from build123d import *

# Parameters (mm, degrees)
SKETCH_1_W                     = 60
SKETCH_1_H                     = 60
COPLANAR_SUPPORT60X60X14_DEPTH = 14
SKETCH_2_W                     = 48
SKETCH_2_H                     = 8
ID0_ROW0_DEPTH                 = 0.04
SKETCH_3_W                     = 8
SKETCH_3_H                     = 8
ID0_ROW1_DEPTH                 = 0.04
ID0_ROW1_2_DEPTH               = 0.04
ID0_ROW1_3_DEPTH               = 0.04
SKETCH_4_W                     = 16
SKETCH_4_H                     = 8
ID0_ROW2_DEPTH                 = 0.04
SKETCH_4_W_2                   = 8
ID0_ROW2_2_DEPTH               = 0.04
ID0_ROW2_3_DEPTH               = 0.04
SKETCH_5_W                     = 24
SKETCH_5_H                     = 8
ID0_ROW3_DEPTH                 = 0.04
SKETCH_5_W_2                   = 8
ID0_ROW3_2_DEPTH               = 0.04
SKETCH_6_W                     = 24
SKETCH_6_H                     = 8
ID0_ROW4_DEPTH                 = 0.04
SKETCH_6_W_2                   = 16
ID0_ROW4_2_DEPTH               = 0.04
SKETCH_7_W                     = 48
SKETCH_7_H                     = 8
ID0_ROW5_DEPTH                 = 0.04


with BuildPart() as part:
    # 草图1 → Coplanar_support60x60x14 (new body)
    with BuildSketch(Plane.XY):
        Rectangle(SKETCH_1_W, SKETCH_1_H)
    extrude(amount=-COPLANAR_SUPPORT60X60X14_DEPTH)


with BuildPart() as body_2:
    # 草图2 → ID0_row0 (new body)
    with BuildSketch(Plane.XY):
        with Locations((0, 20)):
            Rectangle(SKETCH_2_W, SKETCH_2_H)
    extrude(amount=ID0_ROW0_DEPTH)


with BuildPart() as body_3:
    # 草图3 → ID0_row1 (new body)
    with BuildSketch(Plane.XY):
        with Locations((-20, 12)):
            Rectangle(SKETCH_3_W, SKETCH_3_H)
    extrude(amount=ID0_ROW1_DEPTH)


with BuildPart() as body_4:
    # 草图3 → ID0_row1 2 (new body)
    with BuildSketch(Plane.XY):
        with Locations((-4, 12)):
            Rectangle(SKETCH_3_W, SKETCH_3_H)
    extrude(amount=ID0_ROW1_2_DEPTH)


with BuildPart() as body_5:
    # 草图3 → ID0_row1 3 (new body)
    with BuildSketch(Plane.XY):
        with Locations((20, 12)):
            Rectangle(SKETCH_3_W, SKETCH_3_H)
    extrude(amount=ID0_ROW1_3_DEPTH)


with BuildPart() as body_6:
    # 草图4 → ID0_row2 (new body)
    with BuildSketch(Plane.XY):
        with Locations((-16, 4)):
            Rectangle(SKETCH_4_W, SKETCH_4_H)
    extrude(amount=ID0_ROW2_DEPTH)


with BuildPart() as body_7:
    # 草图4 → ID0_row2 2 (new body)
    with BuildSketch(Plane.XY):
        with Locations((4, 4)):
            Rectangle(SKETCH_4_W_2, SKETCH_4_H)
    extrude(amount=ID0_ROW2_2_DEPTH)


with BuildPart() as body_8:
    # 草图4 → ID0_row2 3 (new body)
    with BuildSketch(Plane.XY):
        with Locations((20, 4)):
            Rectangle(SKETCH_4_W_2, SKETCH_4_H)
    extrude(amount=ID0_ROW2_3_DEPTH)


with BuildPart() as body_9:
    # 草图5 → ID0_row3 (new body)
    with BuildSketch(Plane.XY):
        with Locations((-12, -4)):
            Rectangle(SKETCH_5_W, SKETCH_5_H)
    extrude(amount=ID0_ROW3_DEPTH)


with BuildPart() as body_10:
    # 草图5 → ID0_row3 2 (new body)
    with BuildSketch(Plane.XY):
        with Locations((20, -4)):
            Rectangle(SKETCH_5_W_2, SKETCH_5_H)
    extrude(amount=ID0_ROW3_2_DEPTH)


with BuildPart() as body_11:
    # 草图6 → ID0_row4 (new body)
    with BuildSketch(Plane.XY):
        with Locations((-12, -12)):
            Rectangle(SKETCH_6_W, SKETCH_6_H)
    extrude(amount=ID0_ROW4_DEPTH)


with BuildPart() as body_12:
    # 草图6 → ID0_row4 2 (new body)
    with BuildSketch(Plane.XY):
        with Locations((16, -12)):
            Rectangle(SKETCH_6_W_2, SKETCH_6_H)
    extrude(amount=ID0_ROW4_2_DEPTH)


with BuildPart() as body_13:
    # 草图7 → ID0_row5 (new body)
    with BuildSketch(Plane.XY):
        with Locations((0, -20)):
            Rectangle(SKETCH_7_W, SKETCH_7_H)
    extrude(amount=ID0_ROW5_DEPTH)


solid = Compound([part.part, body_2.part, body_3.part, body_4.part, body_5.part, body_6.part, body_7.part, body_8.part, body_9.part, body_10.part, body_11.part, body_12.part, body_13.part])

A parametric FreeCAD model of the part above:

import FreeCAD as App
import Part
import Sketcher

V = App.Vector
Q = App.Units.Quantity

doc = App.newDocument("Part")
body = doc.addObject("PartDesign::Body", "Body")

sketch1 = body.newObject("Sketcher::SketchObject", "Sketch")
sketch1.AttachmentSupport = (doc.getObject("XY_Plane"), [""])
sketch1.MapMode = "FlatFace"
sketch1.addGeometry(Part.LineSegment(V(-30, 30, 0), V(-30, -30, 0)), False)
sketch1.addGeometry(Part.LineSegment(V(-30, -30, 0), V(30, -30, 0)), False)
sketch1.addGeometry(Part.LineSegment(V(30, -30, 0), V(30, 30, 0)), False)
sketch1.addGeometry(Part.LineSegment(V(30, 30, 0), V(-30, 30, 0)), False)
sketch1.addConstraint(Sketcher.Constraint("Coincident", 0, 2, 1, 1))
sketch1.addConstraint(Sketcher.Constraint("Coincident", 1, 2, 2, 1))
sketch1.addConstraint(Sketcher.Constraint("Coincident", 2, 2, 3, 1))
sketch1.addConstraint(Sketcher.Constraint("Coincident", 3, 2, 0, 1))
sketch1.addConstraint(Sketcher.Constraint("Vertical", 0))
sketch1.addConstraint(Sketcher.Constraint("Horizontal", 1))
sketch1.addConstraint(Sketcher.Constraint("Vertical", 2))
sketch1.addConstraint(Sketcher.Constraint("Horizontal", 3))
sketch1.addConstraint(Sketcher.Constraint("Symmetric", 0, 2, 2, 2, -1, 1))
sketch1.addConstraint(Sketcher.Constraint("Equal", 3, 0))
sketch1.addConstraint(Sketcher.Constraint("DistanceX", 1, 1, 1, 2, Q("60 mm")))
pad1 = body.newObject("PartDesign::Pad", "Pad")
pad1.Profile = sketch1
pad1.Length = 14
pad1.Reversed = True
body2 = doc.addObject("PartDesign::Body", "Body001")

sketch2 = body2.newObject("Sketcher::SketchObject", "Sketch001")
sketch2.AttachmentSupport = (doc.getObject("XY_Plane001"), [""])
sketch2.MapMode = "FlatFace"
sketch2.addGeometry(Part.LineSegment(V(-24, 24, 0), V(-24, 16, 0)), False)
sketch2.addGeometry(Part.LineSegment(V(-24, 16, 0), V(24, 16, 0)), False)
sketch2.addGeometry(Part.LineSegment(V(24, 16, 0), V(24, 24, 0)), False)
sketch2.addGeometry(Part.LineSegment(V(24, 24, 0), V(-24, 24, 0)), False)
sketch2.addConstraint(Sketcher.Constraint("Coincident", 0, 2, 1, 1))
sketch2.addConstraint(Sketcher.Constraint("Coincident", 1, 2, 2, 1))
sketch2.addConstraint(Sketcher.Constraint("Coincident", 2, 2, 3, 1))
sketch2.addConstraint(Sketcher.Constraint("Coincident", 3, 2, 0, 1))
sketch2.addConstraint(Sketcher.Constraint("Vertical", 0))
sketch2.addConstraint(Sketcher.Constraint("Horizontal", 1))
sketch2.addConstraint(Sketcher.Constraint("Vertical", 2))
sketch2.addConstraint(Sketcher.Constraint("Horizontal", 3))
sketch2.addConstraint(Sketcher.Constraint("DistanceX", 1, 1, 1, 2, Q("48 mm")))
sketch2.addConstraint(Sketcher.Constraint("DistanceY", 0, 2, 0, 1, Q("8 mm")))
sketch2.addConstraint(Sketcher.Constraint("DistanceX", 0, 2, -1, 1, Q("24 mm")))
sketch2.addConstraint(Sketcher.Constraint("DistanceY", -1, 1, 0, 2, Q("16 mm")))
pad2 = body2.newObject("PartDesign::Pad", "Pad001")
pad2.Profile = sketch2
pad2.Length = 0.04
body3 = doc.addObject("PartDesign::Body", "Body002")

sketch3 = body3.newObject("Sketcher::SketchObject", "Sketch002")
sketch3.AttachmentSupport = (doc.getObject("XY_Plane002"), [""])
sketch3.MapMode = "FlatFace"
sketch3.addGeometry(Part.LineSegment(V(-24, 16, 0), V(-24, 8, 0)), False)
sketch3.addGeometry(Part.LineSegment(V(-24, 8, 0), V(-16, 8, 0)), False)
sketch3.addGeometry(Part.LineSegment(V(-16, 8, 0), V(-16, 16, 0)), False)
sketch3.addGeometry(Part.LineSegment(V(-16, 16, 0), V(-24, 16, 0)), False)
sketch3.addConstraint(Sketcher.Constraint("Coincident", 0, 2, 1, 1))
sketch3.addConstraint(Sketcher.Constraint("Coincident", 1, 2, 2, 1))
sketch3.addConstraint(Sketcher.Constraint("Coincident", 2, 2, 3, 1))
sketch3.addConstraint(Sketcher.Constraint("Coincident", 3, 2, 0, 1))
sketch3.addConstraint(Sketcher.Constraint("Vertical", 0))
sketch3.addConstraint(Sketcher.Constraint("Horizontal", 1))
sketch3.addConstraint(Sketcher.Constraint("Vertical", 2))
sketch3.addConstraint(Sketcher.Constraint("Horizontal", 3))
sketch3.addConstraint(Sketcher.Constraint("Equal", 3, 0))
sketch3.addConstraint(Sketcher.Constraint("DistanceX", 1, 1, 1, 2, Q("8 mm")))
sketch3.addConstraint(Sketcher.Constraint("DistanceX", 0, 2, -1, 1, Q("24 mm")))
sketch3.addConstraint(Sketcher.Constraint("DistanceY", -1, 1, 0, 2, Q("8 mm")))
pad3 = body3.newObject("PartDesign::Pad", "Pad002")
pad3.Profile = sketch3
pad3.Length = 0.04
body4 = doc.addObject("PartDesign::Body", "Body003")

sketch4 = body4.newObject("Sketcher::SketchObject", "Sketch003")
sketch4.AttachmentSupport = (doc.getObject("XY_Plane003"), [""])
sketch4.MapMode = "FlatFace"
sketch4.addGeometry(Part.LineSegment(V(-8, 16, 0), V(-8, 8, 0)), False)
sketch4.addGeometry(Part.LineSegment(V(-8, 8, 0), V(0, 8, 0)), False)
sketch4.addGeometry(Part.LineSegment(V(0, 8, 0), V(0, 16, 0)), False)
sketch4.addGeometry(Part.LineSegment(V(0, 16, 0), V(-8, 16, 0)), False)
sketch4.addConstraint(Sketcher.Constraint("Coincident", 0, 2, 1, 1))
sketch4.addConstraint(Sketcher.Constraint("Coincident", 1, 2, 2, 1))
sketch4.addConstraint(Sketcher.Constraint("Coincident", 2, 2, 3, 1))
sketch4.addConstraint(Sketcher.Constraint("Coincident", 3, 2, 0, 1))
sketch4.addConstraint(Sketcher.Constraint("Vertical", 0))
sketch4.addConstraint(Sketcher.Constraint("Horizontal", 1))
sketch4.addConstraint(Sketcher.Constraint("Vertical", 2))
sketch4.addConstraint(Sketcher.Constraint("Horizontal", 3))
sketch4.addConstraint(Sketcher.Constraint("PointOnObject", 1, 2, -2))
sketch4.addConstraint(Sketcher.Constraint("Equal", 3, 0))
sketch4.addConstraint(Sketcher.Constraint("DistanceX", 1, 1, 1, 2, Q("8 mm")))
sketch4.addConstraint(Sketcher.Constraint("DistanceY", -1, 1, 0, 2, Q("8 mm")))
pad4 = body4.newObject("PartDesign::Pad", "Pad003")
pad4.Profile = sketch4
pad4.Length = 0.04
body5 = doc.addObject("PartDesign::Body", "Body004")

sketch5 = body5.newObject("Sketcher::SketchObject", "Sketch004")
sketch5.AttachmentSupport = (doc.getObject("XY_Plane004"), [""])
sketch5.MapMode = "FlatFace"
sketch5.addGeometry(Part.LineSegment(V(16, 16, 0), V(16, 8, 0)), False)
sketch5.addGeometry(Part.LineSegment(V(16, 8, 0), V(24, 8, 0)), False)
sketch5.addGeometry(Part.LineSegment(V(24, 8, 0), V(24, 16, 0)), False)
sketch5.addGeometry(Part.LineSegment(V(24, 16, 0), V(16, 16, 0)), False)
sketch5.addConstraint(Sketcher.Constraint("Coincident", 0, 2, 1, 1))
sketch5.addConstraint(Sketcher.Constraint("Coincident", 1, 2, 2, 1))
sketch5.addConstraint(Sketcher.Constraint("Coincident", 2, 2, 3, 1))
sketch5.addConstraint(Sketcher.Constraint("Coincident", 3, 2, 0, 1))
sketch5.addConstraint(Sketcher.Constraint("Vertical", 0))
sketch5.addConstraint(Sketcher.Constraint("Horizontal", 1))
sketch5.addConstraint(Sketcher.Constraint("Vertical", 2))
sketch5.addConstraint(Sketcher.Constraint("Horizontal", 3))
sketch5.addConstraint(Sketcher.Constraint("Equal", 3, 0))
sketch5.addConstraint(Sketcher.Constraint("DistanceX", 1, 1, 1, 2, Q("8 mm")))
sketch5.addConstraint(Sketcher.Constraint("DistanceX", -1, 1, 0, 2, Q("16 mm")))
sketch5.addConstraint(Sketcher.Constraint("DistanceY", -1, 1, 0, 2, Q("8 mm")))
pad5 = body5.newObject("PartDesign::Pad", "Pad004")
pad5.Profile = sketch5
pad5.Length = 0.04
body6 = doc.addObject("PartDesign::Body", "Body005")

sketch6 = body6.newObject("Sketcher::SketchObject", "Sketch005")
sketch6.AttachmentSupport = (doc.getObject("XY_Plane005"), [""])
sketch6.MapMode = "FlatFace"
sketch6.addGeometry(Part.LineSegment(V(-24, 8, 0), V(-24, 0, 0)), False)
sketch6.addGeometry(Part.LineSegment(V(-24, 0, 0), V(-8, 0, 0)), False)
sketch6.addGeometry(Part.LineSegment(V(-8, 0, 0), V(-8, 8, 0)), False)
sketch6.addGeometry(Part.LineSegment(V(-8, 8, 0), V(-24, 8, 0)), False)
sketch6.addConstraint(Sketcher.Constraint("Coincident", 0, 2, 1, 1))
sketch6.addConstraint(Sketcher.Constraint("Coincident", 1, 2, 2, 1))
sketch6.addConstraint(Sketcher.Constraint("Coincident", 2, 2, 3, 1))
sketch6.addConstraint(Sketcher.Constraint("Coincident", 3, 2, 0, 1))
sketch6.addConstraint(Sketcher.Constraint("Vertical", 0))
sketch6.addConstraint(Sketcher.Constraint("Horizontal", 1))
sketch6.addConstraint(Sketcher.Constraint("Vertical", 2))
sketch6.addConstraint(Sketcher.Constraint("Horizontal", 3))
sketch6.addConstraint(Sketcher.Constraint("PointOnObject", 0, 2, -1))
sketch6.addConstraint(Sketcher.Constraint("DistanceX", 1, 1, 1, 2, Q("16 mm")))
sketch6.addConstraint(Sketcher.Constraint("DistanceY", 0, 2, 0, 1, Q("8 mm")))
sketch6.addConstraint(Sketcher.Constraint("DistanceX", 0, 2, -1, 1, Q("24 mm")))
pad6 = body6.newObject("PartDesign::Pad", "Pad005")
pad6.Profile = sketch6
pad6.Length = 0.04
body7 = doc.addObject("PartDesign::Body", "Body006")

sketch7 = body7.newObject("Sketcher::SketchObject", "Sketch006")
sketch7.AttachmentSupport = (doc.getObject("XY_Plane006"), [""])
sketch7.MapMode = "FlatFace"
sketch7.addGeometry(Part.LineSegment(V(0, 8, 0), V(0, 0, 0)), False)
sketch7.addGeometry(Part.LineSegment(V(0, 0, 0), V(8, 0, 0)), False)
sketch7.addGeometry(Part.LineSegment(V(8, 0, 0), V(8, 8, 0)), False)
sketch7.addGeometry(Part.LineSegment(V(8, 8, 0), V(0, 8, 0)), False)
sketch7.addConstraint(Sketcher.Constraint("Coincident", 0, 2, 1, 1))
sketch7.addConstraint(Sketcher.Constraint("Coincident", 1, 2, 2, 1))
sketch7.addConstraint(Sketcher.Constraint("Coincident", 2, 2, 3, 1))
sketch7.addConstraint(Sketcher.Constraint("Coincident", 3, 2, 0, 1))
sketch7.addConstraint(Sketcher.Constraint("Vertical", 0))
sketch7.addConstraint(Sketcher.Constraint("Horizontal", 1))
sketch7.addConstraint(Sketcher.Constraint("Vertical", 2))
sketch7.addConstraint(Sketcher.Constraint("Horizontal", 3))
sketch7.addConstraint(Sketcher.Constraint("Coincident", 0, 2, -1, 1))
sketch7.addConstraint(Sketcher.Constraint("Equal", 3, 0))
sketch7.addConstraint(Sketcher.Constraint("DistanceX", 1, 1, 1, 2, Q("8 mm")))
pad7 = body7.newObject("PartDesign::Pad", "Pad006")
pad7.Profile = sketch7
pad7.Length = 0.04
body8 = doc.addObject("PartDesign::Body", "Body007")

sketch8 = body8.newObject("Sketcher::SketchObject", "Sketch007")
sketch8.AttachmentSupport = (doc.getObject("XY_Plane007"), [""])
sketch8.MapMode = "FlatFace"
sketch8.addGeometry(Part.LineSegment(V(16, 8, 0), V(16, 0, 0)), False)
sketch8.addGeometry(Part.LineSegment(V(16, 0, 0), V(24, 0, 0)), False)
sketch8.addGeometry(Part.LineSegment(V(24, 0, 0), V(24, 8, 0)), False)
sketch8.addGeometry(Part.LineSegment(V(24, 8, 0), V(16, 8, 0)), False)
sketch8.addConstraint(Sketcher.Constraint("Coincident", 0, 2, 1, 1))
sketch8.addConstraint(Sketcher.Constraint("Coincident", 1, 2, 2, 1))
sketch8.addConstraint(Sketcher.Constraint("Coincident", 2, 2, 3, 1))
sketch8.addConstraint(Sketcher.Constraint("Coincident", 3, 2, 0, 1))
sketch8.addConstraint(Sketcher.Constraint("Vertical", 0))
sketch8.addConstraint(Sketcher.Constraint("Horizontal", 1))
sketch8.addConstraint(Sketcher.Constraint("Vertical", 2))
sketch8.addConstraint(Sketcher.Constraint("Horizontal", 3))
sketch8.addConstraint(Sketcher.Constraint("PointOnObject", 0, 2, -1))
sketch8.addConstraint(Sketcher.Constraint("Equal", 3, 0))
sketch8.addConstraint(Sketcher.Constraint("DistanceX", 1, 1, 1, 2, Q("8 mm")))
sketch8.addConstraint(Sketcher.Constraint("DistanceX", -1, 1, 0, 2, Q("16 mm")))
pad8 = body8.newObject("PartDesign::Pad", "Pad007")
pad8.Profile = sketch8
pad8.Length = 0.04
body9 = doc.addObject("PartDesign::Body", "Body008")

sketch9 = body9.newObject("Sketcher::SketchObject", "Sketch008")
sketch9.AttachmentSupport = (doc.getObject("XY_Plane008"), [""])
sketch9.MapMode = "FlatFace"
sketch9.addGeometry(Part.LineSegment(V(-24, 0, 0), V(-24, -8, 0)), False)
sketch9.addGeometry(Part.LineSegment(V(-24, -8, 0), V(0, -8, 0)), False)
sketch9.addGeometry(Part.LineSegment(V(0, -8, 0), V(0, 0, 0)), False)
sketch9.addGeometry(Part.LineSegment(V(0, 0, 0), V(-24, 0, 0)), False)
sketch9.addConstraint(Sketcher.Constraint("Coincident", 0, 2, 1, 1))
sketch9.addConstraint(Sketcher.Constraint("Coincident", 1, 2, 2, 1))
sketch9.addConstraint(Sketcher.Constraint("Coincident", 2, 2, 3, 1))
sketch9.addConstraint(Sketcher.Constraint("Coincident", 3, 2, 0, 1))
sketch9.addConstraint(Sketcher.Constraint("Vertical", 0))
sketch9.addConstraint(Sketcher.Constraint("Horizontal", 1))
sketch9.addConstraint(Sketcher.Constraint("Vertical", 2))
sketch9.addConstraint(Sketcher.Constraint("Horizontal", 3))
sketch9.addConstraint(Sketcher.Constraint("Coincident", 2, 2, -1, 1))
sketch9.addConstraint(Sketcher.Constraint("DistanceX", 1, 1, 1, 2, Q("24 mm")))
sketch9.addConstraint(Sketcher.Constraint("DistanceY", 0, 2, 0, 1, Q("8 mm")))
pad9 = body9.newObject("PartDesign::Pad", "Pad008")
pad9.Profile = sketch9
pad9.Length = 0.04
body10 = doc.addObject("PartDesign::Body", "Body009")

sketch10 = body10.newObject("Sketcher::SketchObject", "Sketch009")
sketch10.AttachmentSupport = (doc.getObject("XY_Plane009"), [""])
sketch10.MapMode = "FlatFace"
sketch10.addGeometry(Part.LineSegment(V(16, 0, 0), V(16, -8, 0)), False)
sketch10.addGeometry(Part.LineSegment(V(16, -8, 0), V(24, -8, 0)), False)
sketch10.addGeometry(Part.LineSegment(V(24, -8, 0), V(24, 0, 0)), False)
sketch10.addGeometry(Part.LineSegment(V(24, 0, 0), V(16, 0, 0)), False)
sketch10.addConstraint(Sketcher.Constraint("Coincident", 0, 2, 1, 1))
sketch10.addConstraint(Sketcher.Constraint("Coincident", 1, 2, 2, 1))
sketch10.addConstraint(Sketcher.Constraint("Coincident", 2, 2, 3, 1))
sketch10.addConstraint(Sketcher.Constraint("Coincident", 3, 2, 0, 1))
sketch10.addConstraint(Sketcher.Constraint("Vertical", 0))
sketch10.addConstraint(Sketcher.Constraint("Horizontal", 1))
sketch10.addConstraint(Sketcher.Constraint("Vertical", 2))
sketch10.addConstraint(Sketcher.Constraint("Horizontal", 3))
sketch10.addConstraint(Sketcher.Constraint("PointOnObject", 2, 2, -1))
sketch10.addConstraint(Sketcher.Constraint("Equal", 3, 0))
sketch10.addConstraint(Sketcher.Constraint("DistanceX", 1, 1, 1, 2, Q("8 mm")))
sketch10.addConstraint(Sketcher.Constraint("DistanceX", -1, 1, 0, 2, Q("16 mm")))
pad10 = body10.newObject("PartDesign::Pad", "Pad009")
pad10.Profile = sketch10
pad10.Length = 0.04
body11 = doc.addObject("PartDesign::Body", "Body010")

sketch11 = body11.newObject("Sketcher::SketchObject", "Sketch010")
sketch11.AttachmentSupport = (doc.getObject("XY_Plane010"), [""])
sketch11.MapMode = "FlatFace"
sketch11.addGeometry(Part.LineSegment(V(-24, -8, 0), V(-24, -16, 0)), False)
sketch11.addGeometry(Part.LineSegment(V(-24, -16, 0), V(0, -16, 0)), False)
sketch11.addGeometry(Part.LineSegment(V(0, -16, 0), V(0, -8, 0)), False)
sketch11.addGeometry(Part.LineSegment(V(0, -8, 0), V(-24, -8, 0)), False)
sketch11.addConstraint(Sketcher.Constraint("Coincident", 0, 2, 1, 1))
sketch11.addConstraint(Sketcher.Constraint("Coincident", 1, 2, 2, 1))
sketch11.addConstraint(Sketcher.Constraint("Coincident", 2, 2, 3, 1))
sketch11.addConstraint(Sketcher.Constraint("Coincident", 3, 2, 0, 1))
sketch11.addConstraint(Sketcher.Constraint("Vertical", 0))
sketch11.addConstraint(Sketcher.Constraint("Horizontal", 1))
sketch11.addConstraint(Sketcher.Constraint("Vertical", 2))
sketch11.addConstraint(Sketcher.Constraint("Horizontal", 3))
sketch11.addConstraint(Sketcher.Constraint("PointOnObject", 1, 2, -2))
sketch11.addConstraint(Sketcher.Constraint("DistanceX", 1, 1, 1, 2, Q("24 mm")))
sketch11.addConstraint(Sketcher.Constraint("DistanceY", 0, 2, 0, 1, Q("8 mm")))
sketch11.addConstraint(Sketcher.Constraint("DistanceY", 0, 2, -1, 1, Q("16 mm")))
pad11 = body11.newObject("PartDesign::Pad", "Pad010")
pad11.Profile = sketch11
pad11.Length = 0.04
body12 = doc.addObject("PartDesign::Body", "Body011")

sketch12 = body12.newObject("Sketcher::SketchObject", "Sketch011")
sketch12.AttachmentSupport = (doc.getObject("XY_Plane011"), [""])
sketch12.MapMode = "FlatFace"
sketch12.addGeometry(Part.LineSegment(V(8, -8, 0), V(8, -16, 0)), False)
sketch12.addGeometry(Part.LineSegment(V(8, -16, 0), V(24, -16, 0)), False)
sketch12.addGeometry(Part.LineSegment(V(24, -16, 0), V(24, -8, 0)), False)
sketch12.addGeometry(Part.LineSegment(V(24, -8, 0), V(8, -8, 0)), False)
sketch12.addConstraint(Sketcher.Constraint("Coincident", 0, 2, 1, 1))
sketch12.addConstraint(Sketcher.Constraint("Coincident", 1, 2, 2, 1))
sketch12.addConstraint(Sketcher.Constraint("Coincident", 2, 2, 3, 1))
sketch12.addConstraint(Sketcher.Constraint("Coincident", 3, 2, 0, 1))
sketch12.addConstraint(Sketcher.Constraint("Vertical", 0))
sketch12.addConstraint(Sketcher.Constraint("Horizontal", 1))
sketch12.addConstraint(Sketcher.Constraint("Vertical", 2))
sketch12.addConstraint(Sketcher.Constraint("Horizontal", 3))
sketch12.addConstraint(Sketcher.Constraint("DistanceX", 1, 1, 1, 2, Q("16 mm")))
sketch12.addConstraint(Sketcher.Constraint("DistanceY", 0, 2, 0, 1, Q("8 mm")))
sketch12.addConstraint(Sketcher.Constraint("DistanceX", -1, 1, 0, 2, Q("8 mm")))
sketch12.addConstraint(Sketcher.Constraint("DistanceY", 0, 2, -1, 1, Q("16 mm")))
pad12 = body12.newObject("PartDesign::Pad", "Pad011")
pad12.Profile = sketch12
pad12.Length = 0.04
body13 = doc.addObject("PartDesign::Body", "Body012")

sketch13 = body13.newObject("Sketcher::SketchObject", "Sketch012")
sketch13.AttachmentSupport = (doc.getObject("XY_Plane012"), [""])
sketch13.MapMode = "FlatFace"
sketch13.addGeometry(Part.LineSegment(V(-24, -16, 0), V(-24, -24, 0)), False)
sketch13.addGeometry(Part.LineSegment(V(-24, -24, 0), V(24, -24, 0)), False)
sketch13.addGeometry(Part.LineSegment(V(24, -24, 0), V(24, -16, 0)), False)
sketch13.addGeometry(Part.LineSegment(V(24, -16, 0), V(-24, -16, 0)), False)
sketch13.addConstraint(Sketcher.Constraint("Coincident", 0, 2, 1, 1))
sketch13.addConstraint(Sketcher.Constraint("Coincident", 1, 2, 2, 1))
sketch13.addConstraint(Sketcher.Constraint("Coincident", 2, 2, 3, 1))
sketch13.addConstraint(Sketcher.Constraint("Coincident", 3, 2, 0, 1))
sketch13.addConstraint(Sketcher.Constraint("Vertical", 0))
sketch13.addConstraint(Sketcher.Constraint("Horizontal", 1))
sketch13.addConstraint(Sketcher.Constraint("Vertical", 2))
sketch13.addConstraint(Sketcher.Constraint("Horizontal", 3))
sketch13.addConstraint(Sketcher.Constraint("DistanceX", 1, 1, 1, 2, Q("48 mm")))
sketch13.addConstraint(Sketcher.Constraint("DistanceY", 0, 2, 0, 1, Q("8 mm")))
sketch13.addConstraint(Sketcher.Constraint("DistanceX", 0, 2, -1, 1, Q("24 mm")))
sketch13.addConstraint(Sketcher.Constraint("DistanceY", 0, 2, -1, 1, Q("24 mm")))
pad13 = body13.newObject("PartDesign::Pad", "Pad012")
pad13.Profile = sketch13
pad13.Length = 0.04

doc.recompute()
